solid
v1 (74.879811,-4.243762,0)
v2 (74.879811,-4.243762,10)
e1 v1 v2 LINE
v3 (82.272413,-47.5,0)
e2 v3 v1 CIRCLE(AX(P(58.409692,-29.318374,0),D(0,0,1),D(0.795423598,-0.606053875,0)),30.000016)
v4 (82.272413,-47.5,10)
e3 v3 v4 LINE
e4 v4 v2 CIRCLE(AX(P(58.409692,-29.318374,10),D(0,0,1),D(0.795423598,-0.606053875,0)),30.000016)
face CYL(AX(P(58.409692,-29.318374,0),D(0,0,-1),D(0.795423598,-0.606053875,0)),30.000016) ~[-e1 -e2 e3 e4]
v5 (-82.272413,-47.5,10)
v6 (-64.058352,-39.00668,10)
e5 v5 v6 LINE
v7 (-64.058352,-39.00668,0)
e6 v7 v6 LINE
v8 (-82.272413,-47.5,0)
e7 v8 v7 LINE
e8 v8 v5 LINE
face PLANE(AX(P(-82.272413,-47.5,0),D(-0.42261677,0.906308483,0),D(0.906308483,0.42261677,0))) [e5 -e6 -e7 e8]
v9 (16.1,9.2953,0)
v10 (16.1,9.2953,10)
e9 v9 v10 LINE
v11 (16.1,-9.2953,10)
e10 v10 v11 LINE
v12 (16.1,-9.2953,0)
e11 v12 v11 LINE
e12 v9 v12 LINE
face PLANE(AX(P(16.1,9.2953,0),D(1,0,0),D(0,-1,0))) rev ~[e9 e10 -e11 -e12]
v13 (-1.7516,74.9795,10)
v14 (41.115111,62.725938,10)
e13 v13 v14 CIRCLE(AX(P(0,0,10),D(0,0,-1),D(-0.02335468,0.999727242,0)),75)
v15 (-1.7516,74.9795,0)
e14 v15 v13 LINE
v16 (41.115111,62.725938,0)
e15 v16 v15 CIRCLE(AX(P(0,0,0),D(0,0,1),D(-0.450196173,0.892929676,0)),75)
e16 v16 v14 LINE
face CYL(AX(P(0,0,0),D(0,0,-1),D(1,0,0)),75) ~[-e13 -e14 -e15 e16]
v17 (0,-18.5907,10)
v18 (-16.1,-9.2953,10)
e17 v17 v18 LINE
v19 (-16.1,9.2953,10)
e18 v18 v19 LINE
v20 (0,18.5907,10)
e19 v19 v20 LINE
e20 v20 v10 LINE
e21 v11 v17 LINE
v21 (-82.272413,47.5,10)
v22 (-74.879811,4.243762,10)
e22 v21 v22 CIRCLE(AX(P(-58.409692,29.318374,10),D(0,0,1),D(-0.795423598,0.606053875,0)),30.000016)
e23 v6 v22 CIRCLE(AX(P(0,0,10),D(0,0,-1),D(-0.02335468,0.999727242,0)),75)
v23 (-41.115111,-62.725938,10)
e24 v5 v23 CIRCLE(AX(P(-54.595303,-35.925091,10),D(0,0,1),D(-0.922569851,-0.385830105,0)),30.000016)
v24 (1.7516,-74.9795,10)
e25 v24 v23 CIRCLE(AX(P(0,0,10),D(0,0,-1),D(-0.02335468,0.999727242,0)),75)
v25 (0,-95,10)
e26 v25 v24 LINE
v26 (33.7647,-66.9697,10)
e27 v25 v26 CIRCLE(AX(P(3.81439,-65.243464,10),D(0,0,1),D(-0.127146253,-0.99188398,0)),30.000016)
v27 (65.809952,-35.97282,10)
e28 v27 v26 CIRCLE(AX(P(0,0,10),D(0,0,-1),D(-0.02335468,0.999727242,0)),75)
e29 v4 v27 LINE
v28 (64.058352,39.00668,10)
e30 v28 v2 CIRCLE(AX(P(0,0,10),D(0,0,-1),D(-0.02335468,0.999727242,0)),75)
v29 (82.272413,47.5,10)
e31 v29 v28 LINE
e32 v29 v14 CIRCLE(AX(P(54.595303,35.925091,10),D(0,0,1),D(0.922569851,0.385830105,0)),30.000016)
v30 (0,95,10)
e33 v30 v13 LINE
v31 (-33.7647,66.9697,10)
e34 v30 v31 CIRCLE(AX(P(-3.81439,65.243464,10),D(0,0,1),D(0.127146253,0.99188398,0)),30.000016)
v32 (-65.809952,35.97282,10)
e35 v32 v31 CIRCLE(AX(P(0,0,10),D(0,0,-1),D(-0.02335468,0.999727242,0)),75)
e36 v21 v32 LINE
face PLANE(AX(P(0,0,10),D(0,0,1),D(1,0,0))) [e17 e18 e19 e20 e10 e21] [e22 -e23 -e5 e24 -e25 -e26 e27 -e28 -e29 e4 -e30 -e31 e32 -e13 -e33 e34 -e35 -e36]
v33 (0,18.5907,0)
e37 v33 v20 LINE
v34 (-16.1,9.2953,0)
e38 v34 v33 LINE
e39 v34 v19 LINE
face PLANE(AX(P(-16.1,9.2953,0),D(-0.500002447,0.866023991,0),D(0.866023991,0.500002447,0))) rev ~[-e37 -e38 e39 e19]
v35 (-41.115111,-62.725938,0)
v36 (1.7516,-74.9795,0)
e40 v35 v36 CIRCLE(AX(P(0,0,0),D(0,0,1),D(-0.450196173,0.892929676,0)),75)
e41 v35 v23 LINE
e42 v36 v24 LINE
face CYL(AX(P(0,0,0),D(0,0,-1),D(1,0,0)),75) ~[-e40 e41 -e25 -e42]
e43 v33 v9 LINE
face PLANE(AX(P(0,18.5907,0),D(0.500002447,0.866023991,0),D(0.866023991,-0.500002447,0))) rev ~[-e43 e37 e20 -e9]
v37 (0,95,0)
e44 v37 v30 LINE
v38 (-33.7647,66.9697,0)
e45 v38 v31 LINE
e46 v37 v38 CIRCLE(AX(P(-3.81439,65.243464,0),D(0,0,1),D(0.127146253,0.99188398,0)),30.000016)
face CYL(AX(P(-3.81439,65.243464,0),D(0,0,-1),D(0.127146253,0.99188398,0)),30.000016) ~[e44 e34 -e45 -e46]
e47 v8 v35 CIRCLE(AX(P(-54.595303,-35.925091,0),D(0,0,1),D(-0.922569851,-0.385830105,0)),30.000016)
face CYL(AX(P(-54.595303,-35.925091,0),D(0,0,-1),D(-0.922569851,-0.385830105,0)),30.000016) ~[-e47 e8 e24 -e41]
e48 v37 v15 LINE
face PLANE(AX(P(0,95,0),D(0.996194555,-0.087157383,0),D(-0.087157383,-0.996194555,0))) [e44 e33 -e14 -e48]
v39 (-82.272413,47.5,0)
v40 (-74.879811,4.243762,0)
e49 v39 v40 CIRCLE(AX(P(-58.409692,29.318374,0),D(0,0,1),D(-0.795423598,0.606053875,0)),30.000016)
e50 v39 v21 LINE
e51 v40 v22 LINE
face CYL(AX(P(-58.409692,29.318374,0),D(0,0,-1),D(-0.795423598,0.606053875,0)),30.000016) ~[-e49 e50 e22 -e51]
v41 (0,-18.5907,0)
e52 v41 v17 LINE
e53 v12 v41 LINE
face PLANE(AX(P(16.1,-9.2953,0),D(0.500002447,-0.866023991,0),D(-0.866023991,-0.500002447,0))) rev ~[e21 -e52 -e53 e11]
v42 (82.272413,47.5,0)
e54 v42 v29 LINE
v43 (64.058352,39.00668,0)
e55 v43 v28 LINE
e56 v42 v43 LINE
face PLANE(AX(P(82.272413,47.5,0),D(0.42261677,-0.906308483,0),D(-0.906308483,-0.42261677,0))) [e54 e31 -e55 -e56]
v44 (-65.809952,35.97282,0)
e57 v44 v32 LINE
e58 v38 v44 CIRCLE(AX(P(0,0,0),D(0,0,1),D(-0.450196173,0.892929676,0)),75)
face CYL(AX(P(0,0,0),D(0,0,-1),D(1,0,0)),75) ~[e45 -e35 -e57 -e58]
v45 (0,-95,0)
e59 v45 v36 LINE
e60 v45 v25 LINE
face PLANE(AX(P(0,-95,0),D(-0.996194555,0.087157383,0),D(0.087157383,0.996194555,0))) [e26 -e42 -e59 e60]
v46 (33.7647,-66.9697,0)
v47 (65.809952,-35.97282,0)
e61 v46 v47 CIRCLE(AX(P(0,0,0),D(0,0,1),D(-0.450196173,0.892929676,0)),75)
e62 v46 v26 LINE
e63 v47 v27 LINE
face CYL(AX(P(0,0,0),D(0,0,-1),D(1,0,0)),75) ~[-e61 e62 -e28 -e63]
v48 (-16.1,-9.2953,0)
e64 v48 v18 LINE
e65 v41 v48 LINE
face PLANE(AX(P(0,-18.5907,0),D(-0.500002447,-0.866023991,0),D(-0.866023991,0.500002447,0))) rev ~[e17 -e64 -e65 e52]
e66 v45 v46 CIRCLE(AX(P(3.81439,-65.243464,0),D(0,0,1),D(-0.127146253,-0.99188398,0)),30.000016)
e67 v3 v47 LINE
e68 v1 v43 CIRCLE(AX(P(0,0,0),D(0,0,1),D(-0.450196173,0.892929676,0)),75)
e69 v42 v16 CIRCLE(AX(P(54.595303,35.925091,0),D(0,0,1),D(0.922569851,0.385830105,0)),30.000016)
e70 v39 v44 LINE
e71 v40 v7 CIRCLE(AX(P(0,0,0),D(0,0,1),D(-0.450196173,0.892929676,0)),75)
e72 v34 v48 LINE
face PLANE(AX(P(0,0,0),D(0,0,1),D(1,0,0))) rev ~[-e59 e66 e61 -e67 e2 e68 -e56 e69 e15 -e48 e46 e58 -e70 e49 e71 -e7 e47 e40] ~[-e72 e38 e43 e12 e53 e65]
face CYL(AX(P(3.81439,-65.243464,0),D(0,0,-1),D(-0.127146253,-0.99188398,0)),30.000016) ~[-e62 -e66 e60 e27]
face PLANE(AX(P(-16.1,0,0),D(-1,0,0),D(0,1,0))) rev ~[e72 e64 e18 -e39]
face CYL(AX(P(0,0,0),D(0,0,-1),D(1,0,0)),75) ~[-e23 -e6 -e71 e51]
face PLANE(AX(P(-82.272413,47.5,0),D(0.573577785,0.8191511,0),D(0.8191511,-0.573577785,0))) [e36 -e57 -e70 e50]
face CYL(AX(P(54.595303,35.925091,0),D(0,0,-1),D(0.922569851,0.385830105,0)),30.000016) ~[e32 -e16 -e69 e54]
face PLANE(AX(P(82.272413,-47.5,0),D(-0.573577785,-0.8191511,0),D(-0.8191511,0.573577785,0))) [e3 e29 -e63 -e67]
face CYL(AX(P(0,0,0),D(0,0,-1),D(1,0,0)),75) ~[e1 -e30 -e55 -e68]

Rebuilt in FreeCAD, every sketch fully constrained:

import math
import FreeCAD as App
import Part
import Sketcher

V = App.Vector
Q = App.Units.Quantity

doc = App.newDocument("Part")
body = doc.addObject("PartDesign::Body", "Body")

# Sketch on XY plane
sketch1 = body.newObject("Sketcher::SketchObject", "Sketch")
sketch1.AttachmentSupport = (doc.getObject("XY_Plane"), [""])
sketch1.MapMode = "FlatFace"
sketch1.addGeometry(Part.Circle(V(0, 0, 0), V(0, 0, 1), 75), False)
sketch1.addGeometry(Part.LineSegment(V(16.1, -9.2953, 0), V(0, -18.5907, 0)), False)
sketch1.addGeometry(Part.LineSegment(V(0, -18.5907, 0), V(-16.1, -9.2953, 0)), False)
sketch1.addGeometry(Part.LineSegment(V(-16.1, -9.2953, 0), V(-16.1, 9.2953, 0)), False)
sketch1.addGeometry(Part.LineSegment(V(-16.1, 9.2953, 0), V(0, 18.5907, 0)), False)
sketch1.addGeometry(Part.LineSegment(V(0, 18.5907, 0), V(16.1, 9.2953, 0)), False)
sketch1.addGeometry(Part.LineSegment(V(16.1, 9.2953, 0), V(16.1, -9.2953, 0)), False)
sketch1.addConstraint(Sketcher.Constraint("Coincident", 1, 2, 2, 1))
sketch1.addConstraint(Sketcher.Constraint("Coincident", 2, 2, 3, 1))
sketch1.addConstraint(Sketcher.Constraint("Coincident", 3, 2, 4, 1))
sketch1.addConstraint(Sketcher.Constraint("Coincident", 4, 2, 5, 1))
sketch1.addConstraint(Sketcher.Constraint("Coincident", 5, 2, 6, 1))
sketch1.addConstraint(Sketcher.Constraint("Coincident", 6, 2, 1, 1))
sketch1.addConstraint(Sketcher.Constraint("Vertical", 3))
sketch1.addConstraint(Sketcher.Constraint("Vertical", 6))
sketch1.addConstraint(Sketcher.Constraint("Coincident", 0, 3, -1, 1))
sketch1.addConstraint(Sketcher.Constraint("Symmetric", 1, 2, 4, 2, -1, 1))
sketch1.addConstraint(Sketcher.Constraint("Symmetric", 2, 2, 5, 2, -1, 1))
sketch1.addConstraint(Sketcher.Constraint("PointOnObject", 1, 2, -2))
sketch1.addConstraint(Sketcher.Constraint("Parallel", 1, 4))
sketch1.addConstraint(Sketcher.Constraint("Horizontal", 3, 2, 5, 2))
sketch1.addConstraint(Sketcher.Constraint("Diameter", 0, 150.0))
sketch1.addConstraint(Sketcher.Constraint("Angle", 1, Q("-149.9998 deg")))
sketch1.addConstraint(Sketcher.Constraint("DistanceX", 3, 2, 5, 2, 32.2))
sketch1.addConstraint(Sketcher.Constraint("DistanceY", 3, 1, 3, 2, 18.5906))
pad1 = body.newObject("PartDesign::Pad", "Pad")
pad1.Profile = sketch1
pad1.Length = 10

# Sketch on XY plane
sketch2 = body.newObject("Sketcher::SketchObject", "Sketch001")
sketch2.AttachmentSupport = (doc.getObject("XY_Plane"), [""])
sketch2.MapMode = "FlatFace"
sketch2.addGeometry(Part.ArcOfCircle(Part.Circle(V(0, 0, 0), V(0, 0, 1), 75), math.radians(91.338246), math.radians(116.756271)), False)
sketch2.addGeometry(Part.LineSegment(V(-1.7516, 74.9795, 0), V(0, 95, 0)), False)
sketch2.addGeometry(Part.ArcOfCircle(Part.Circle(V(-3.8144, 65.2435, 0), V(0, 0, 1), 29.999982), math.radians(82.695256), math.radians(176.701379)), False)
sketch2.addConstraint(Sketcher.Constraint("Coincident", 0, 1, 1, 1))
sketch2.addConstraint(Sketcher.Constraint("Coincident", 1, 2, 2, 1))
sketch2.addConstraint(Sketcher.Constraint("Coincident", 2, 2, 0, 2))
sketch2.addConstraint(Sketcher.Constraint("Coincident", 0, 3, -1, 1))
sketch2.addConstraint(Sketcher.Constraint("PointOnObject", 1, 2, -2))
sketch2.addConstraint(Sketcher.Constraint("Radius", 2, 30.0))
sketch2.addConstraint(Sketcher.Constraint("Radius", 0, 75.0))
sketch2.addConstraint(Sketcher.Constraint("Angle", 1, Q("85 deg")))
sketch2.addConstraint(Sketcher.Constraint("DistanceY", -1, 1, 1, 2, 95.0))
sketch2.addConstraint(Sketcher.Constraint("DistanceY", 2, 3, 0, 1, 9.736))
pad2 = body.newObject("PartDesign::Pad", "Pad001")
pad2.Profile = sketch2
pad2.Length = 10
doc.recompute()

polarpattern = body.newObject("PartDesign::PolarPattern", "PolarPattern")
polarpattern.Originals = [pad2]
polarpattern.Axis = (doc.getObject("Z_Axis"), [""])
polarpattern.Angle = 360
polarpattern.Occurrences = 6
body.Tip = polarpattern

doc.recompute()
